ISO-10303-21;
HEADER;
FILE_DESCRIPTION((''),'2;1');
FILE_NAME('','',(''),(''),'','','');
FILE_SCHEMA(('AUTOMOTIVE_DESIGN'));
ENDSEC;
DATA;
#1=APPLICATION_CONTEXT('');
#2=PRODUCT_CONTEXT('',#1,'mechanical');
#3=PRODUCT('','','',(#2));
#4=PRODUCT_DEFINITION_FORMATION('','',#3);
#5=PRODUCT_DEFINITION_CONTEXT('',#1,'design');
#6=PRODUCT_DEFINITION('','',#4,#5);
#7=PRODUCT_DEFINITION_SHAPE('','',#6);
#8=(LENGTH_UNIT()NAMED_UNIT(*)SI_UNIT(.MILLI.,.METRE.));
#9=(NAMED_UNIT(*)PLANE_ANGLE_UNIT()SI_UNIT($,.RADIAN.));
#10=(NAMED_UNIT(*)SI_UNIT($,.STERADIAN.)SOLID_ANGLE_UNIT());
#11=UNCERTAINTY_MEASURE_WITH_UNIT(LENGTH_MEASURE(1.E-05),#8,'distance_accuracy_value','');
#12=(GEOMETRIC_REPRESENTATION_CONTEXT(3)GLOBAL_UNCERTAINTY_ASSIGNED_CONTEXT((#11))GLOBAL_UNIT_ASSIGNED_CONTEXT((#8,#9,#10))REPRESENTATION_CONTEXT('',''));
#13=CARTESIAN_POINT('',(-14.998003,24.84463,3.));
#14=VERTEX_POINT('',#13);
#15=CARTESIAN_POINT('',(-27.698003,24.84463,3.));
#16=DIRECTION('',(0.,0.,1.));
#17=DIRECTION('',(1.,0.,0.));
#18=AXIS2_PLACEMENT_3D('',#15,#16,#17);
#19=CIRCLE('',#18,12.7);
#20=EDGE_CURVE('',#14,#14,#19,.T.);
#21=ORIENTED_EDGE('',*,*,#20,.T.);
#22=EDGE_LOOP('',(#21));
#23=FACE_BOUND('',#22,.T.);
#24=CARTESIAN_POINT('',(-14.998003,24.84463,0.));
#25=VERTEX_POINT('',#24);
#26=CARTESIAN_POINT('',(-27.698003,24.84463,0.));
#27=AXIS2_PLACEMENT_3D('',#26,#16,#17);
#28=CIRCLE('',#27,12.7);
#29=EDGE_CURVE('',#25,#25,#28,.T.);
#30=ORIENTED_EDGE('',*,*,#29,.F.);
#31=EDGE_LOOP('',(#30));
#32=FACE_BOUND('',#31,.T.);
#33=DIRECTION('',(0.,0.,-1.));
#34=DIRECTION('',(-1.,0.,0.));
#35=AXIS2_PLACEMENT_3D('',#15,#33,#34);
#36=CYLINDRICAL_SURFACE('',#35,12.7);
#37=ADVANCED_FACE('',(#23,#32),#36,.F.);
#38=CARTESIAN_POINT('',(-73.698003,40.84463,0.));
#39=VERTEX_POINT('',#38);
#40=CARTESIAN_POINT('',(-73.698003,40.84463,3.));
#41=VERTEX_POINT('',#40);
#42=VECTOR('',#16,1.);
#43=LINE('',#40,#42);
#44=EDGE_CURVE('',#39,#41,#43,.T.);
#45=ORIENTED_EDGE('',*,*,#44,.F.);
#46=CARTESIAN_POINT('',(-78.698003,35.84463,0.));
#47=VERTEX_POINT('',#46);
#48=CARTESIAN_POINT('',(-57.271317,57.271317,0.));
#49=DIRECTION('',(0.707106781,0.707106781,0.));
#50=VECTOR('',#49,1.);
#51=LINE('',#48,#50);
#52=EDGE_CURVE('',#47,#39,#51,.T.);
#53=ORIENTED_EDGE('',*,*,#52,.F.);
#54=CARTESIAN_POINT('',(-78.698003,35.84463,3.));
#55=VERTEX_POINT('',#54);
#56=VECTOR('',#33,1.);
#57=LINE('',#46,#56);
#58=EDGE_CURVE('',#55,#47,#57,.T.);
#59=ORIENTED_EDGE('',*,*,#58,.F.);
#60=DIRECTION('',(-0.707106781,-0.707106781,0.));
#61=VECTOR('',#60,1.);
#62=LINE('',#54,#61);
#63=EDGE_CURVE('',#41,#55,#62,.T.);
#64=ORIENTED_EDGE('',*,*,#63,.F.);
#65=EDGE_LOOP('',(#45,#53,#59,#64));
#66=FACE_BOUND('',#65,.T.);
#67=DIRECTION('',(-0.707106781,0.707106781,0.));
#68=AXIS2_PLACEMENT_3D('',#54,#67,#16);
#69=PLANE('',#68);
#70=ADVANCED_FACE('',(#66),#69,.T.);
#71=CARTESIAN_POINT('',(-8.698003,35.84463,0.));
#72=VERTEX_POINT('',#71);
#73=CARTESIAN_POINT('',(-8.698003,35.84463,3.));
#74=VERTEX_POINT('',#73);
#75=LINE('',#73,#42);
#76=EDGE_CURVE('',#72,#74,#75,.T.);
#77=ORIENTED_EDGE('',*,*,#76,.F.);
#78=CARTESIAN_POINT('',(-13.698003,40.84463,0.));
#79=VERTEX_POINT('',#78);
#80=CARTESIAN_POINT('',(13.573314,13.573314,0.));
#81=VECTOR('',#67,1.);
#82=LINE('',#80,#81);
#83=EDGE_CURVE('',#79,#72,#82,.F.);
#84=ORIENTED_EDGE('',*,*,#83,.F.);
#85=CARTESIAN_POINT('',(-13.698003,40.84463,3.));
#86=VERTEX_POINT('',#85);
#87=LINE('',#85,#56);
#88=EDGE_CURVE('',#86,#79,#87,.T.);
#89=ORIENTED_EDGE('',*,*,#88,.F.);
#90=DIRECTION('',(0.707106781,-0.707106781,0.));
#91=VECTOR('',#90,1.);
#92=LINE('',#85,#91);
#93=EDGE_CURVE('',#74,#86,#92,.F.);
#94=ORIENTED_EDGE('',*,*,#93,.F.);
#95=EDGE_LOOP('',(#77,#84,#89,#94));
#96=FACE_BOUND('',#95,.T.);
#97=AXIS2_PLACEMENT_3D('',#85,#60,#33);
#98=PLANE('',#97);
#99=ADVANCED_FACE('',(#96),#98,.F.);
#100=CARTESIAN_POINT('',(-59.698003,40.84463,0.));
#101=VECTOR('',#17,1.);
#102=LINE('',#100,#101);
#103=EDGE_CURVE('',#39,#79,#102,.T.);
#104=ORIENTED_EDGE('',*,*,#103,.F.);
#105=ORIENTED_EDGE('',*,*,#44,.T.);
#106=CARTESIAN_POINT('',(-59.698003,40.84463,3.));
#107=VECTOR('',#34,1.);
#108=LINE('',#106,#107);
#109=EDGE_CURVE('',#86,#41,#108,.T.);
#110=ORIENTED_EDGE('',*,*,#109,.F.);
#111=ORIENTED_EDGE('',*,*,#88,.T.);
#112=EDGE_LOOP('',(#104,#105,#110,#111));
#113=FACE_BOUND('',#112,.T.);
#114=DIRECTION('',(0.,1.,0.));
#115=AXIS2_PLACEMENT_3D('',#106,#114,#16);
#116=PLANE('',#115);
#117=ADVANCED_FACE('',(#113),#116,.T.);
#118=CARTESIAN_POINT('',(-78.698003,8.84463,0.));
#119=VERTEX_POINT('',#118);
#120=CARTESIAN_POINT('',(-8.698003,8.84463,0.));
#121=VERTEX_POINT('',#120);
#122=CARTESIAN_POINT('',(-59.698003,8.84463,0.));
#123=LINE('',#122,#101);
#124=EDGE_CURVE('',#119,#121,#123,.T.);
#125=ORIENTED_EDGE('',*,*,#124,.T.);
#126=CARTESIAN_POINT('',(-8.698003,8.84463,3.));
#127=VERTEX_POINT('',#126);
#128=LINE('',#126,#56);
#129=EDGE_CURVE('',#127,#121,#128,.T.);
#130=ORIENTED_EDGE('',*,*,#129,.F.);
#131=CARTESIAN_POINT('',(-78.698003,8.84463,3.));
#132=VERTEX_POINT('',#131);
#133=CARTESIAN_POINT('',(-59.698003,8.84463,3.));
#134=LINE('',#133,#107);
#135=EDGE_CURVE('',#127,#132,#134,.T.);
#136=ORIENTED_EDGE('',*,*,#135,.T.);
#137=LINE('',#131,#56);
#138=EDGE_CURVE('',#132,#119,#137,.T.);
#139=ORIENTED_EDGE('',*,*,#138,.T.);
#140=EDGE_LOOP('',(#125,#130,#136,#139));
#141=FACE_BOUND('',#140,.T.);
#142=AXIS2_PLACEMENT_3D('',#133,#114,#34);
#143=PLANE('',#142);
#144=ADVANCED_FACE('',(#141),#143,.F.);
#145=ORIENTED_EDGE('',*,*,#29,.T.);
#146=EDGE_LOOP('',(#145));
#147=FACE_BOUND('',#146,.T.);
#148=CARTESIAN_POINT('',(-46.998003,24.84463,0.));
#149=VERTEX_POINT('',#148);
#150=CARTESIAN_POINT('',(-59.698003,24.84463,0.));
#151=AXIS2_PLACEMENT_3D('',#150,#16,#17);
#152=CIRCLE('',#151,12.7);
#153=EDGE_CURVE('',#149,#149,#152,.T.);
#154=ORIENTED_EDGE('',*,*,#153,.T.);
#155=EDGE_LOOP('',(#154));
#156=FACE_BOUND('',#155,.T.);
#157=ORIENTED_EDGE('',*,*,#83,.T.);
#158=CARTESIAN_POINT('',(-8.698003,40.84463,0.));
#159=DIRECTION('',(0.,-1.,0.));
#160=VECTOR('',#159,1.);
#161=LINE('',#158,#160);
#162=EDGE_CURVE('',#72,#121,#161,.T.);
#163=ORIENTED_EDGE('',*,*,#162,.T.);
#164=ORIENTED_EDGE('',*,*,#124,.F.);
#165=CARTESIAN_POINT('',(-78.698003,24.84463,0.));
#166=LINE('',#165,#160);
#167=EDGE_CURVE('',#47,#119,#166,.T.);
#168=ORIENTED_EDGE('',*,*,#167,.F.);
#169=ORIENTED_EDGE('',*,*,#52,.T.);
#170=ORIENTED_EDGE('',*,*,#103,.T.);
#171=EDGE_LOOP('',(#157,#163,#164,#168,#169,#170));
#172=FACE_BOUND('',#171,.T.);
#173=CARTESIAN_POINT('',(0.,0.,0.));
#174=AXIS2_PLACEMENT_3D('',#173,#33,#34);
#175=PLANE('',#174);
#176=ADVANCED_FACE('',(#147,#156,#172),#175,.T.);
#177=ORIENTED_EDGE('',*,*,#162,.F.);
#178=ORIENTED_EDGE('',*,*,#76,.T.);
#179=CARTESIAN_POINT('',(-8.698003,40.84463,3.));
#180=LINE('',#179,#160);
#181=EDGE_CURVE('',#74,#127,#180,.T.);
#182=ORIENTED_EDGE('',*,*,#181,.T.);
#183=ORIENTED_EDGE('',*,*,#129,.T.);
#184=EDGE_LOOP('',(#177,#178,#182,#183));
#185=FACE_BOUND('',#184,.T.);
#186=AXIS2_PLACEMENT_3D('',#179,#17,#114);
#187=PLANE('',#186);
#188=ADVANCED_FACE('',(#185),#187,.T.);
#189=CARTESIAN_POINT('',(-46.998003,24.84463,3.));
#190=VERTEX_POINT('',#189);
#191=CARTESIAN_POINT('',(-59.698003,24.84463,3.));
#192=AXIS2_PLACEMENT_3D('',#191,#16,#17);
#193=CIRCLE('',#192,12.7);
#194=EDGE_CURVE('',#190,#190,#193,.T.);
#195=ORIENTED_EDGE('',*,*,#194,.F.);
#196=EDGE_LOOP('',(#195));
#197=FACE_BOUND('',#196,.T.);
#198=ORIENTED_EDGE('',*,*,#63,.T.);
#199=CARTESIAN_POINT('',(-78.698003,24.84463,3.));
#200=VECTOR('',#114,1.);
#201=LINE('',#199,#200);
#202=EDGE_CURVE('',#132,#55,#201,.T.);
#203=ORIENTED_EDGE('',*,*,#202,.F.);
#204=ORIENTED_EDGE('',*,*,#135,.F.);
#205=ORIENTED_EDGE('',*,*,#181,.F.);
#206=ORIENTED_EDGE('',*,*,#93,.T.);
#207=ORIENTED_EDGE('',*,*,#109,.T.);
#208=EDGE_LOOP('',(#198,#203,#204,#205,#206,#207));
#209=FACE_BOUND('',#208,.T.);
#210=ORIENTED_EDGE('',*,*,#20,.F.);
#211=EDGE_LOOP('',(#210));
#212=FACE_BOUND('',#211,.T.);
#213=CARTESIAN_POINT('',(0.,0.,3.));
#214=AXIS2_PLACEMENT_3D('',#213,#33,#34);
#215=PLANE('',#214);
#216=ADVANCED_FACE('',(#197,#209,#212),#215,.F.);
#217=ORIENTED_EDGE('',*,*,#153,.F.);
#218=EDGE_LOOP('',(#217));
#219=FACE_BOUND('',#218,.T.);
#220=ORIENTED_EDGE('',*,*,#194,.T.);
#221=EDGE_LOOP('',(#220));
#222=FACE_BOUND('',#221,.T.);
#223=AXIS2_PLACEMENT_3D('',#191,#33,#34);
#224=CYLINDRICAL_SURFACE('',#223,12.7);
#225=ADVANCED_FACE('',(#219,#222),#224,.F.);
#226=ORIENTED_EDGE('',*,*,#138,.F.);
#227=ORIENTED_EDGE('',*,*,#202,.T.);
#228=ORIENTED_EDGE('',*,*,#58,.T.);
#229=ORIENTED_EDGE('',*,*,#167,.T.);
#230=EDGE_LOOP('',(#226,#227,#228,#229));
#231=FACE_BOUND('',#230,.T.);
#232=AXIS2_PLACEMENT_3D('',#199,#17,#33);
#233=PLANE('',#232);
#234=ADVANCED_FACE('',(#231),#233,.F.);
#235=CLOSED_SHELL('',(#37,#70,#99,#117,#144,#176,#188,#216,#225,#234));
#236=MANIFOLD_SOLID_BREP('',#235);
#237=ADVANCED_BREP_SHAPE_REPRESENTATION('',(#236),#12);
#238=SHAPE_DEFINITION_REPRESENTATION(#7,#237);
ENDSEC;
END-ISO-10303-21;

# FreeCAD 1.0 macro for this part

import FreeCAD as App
import Part
import Sketcher
from FreeCAD import Vector


def edges_at(feature, points):
    """Names of the edges that pass closest to the given points."""
    edges = feature.Shape.Edges
    near = lambda p: min(range(len(edges)), key=lambda i: edges[i].distToShape(Part.Vertex(*p))[0])
    return sorted({f"Edge{near(p) + 1}" for p in points})


def add_polygon(sketch, points):
    """Adds a closed chain of lines whose ends are joined by coincident constraints."""
    first, n = sketch.GeometryCount, len(points)
    for a, b in zip(points, points[1:] + points[:1]):
        sketch.addGeometry(Part.LineSegment(App.Vector(*a, 0), App.Vector(*b, 0)), False)
    for i in range(n):
        sketch.addConstraint(Sketcher.Constraint("Coincident", first + i, 2, first + (i + 1) % n, 1))

doc = App.newDocument("Part")
body = doc.addObject("PartDesign::Body", "Body")

sketch1 = body.newObject("Sketcher::SketchObject", "Sketch")
sketch1.AttachmentSupport = (doc.getObject("XY_Plane"), [""])
sketch1.MapMode = "FlatFace"
add_polygon(sketch1, [(-78.698003, 40.84463), (-78.698003, 8.84463), (-8.698003, 8.84463), (-8.698003, 40.84463)])
sketch1.addGeometry(Part.Circle(Vector(-27.698003, 24.84463, 0), Vector(0, 0, 1), 12.7), False)
sketch1.addGeometry(Part.Circle(Vector(-59.698003, 24.84463, 0), Vector(0, 0, 1), 12.7), False)
sketch1.addConstraint(Sketcher.Constraint("Vertical", 0))
sketch1.addConstraint(Sketcher.Constraint("Horizontal", 1))
sketch1.addConstraint(Sketcher.Constraint("Vertical", 2))
sketch1.addConstraint(Sketcher.Constraint("Horizontal", 3))
sketch1.addConstraint(Sketcher.Constraint("Equal", 4, 5))
sketch1.addConstraint(Sketcher.Constraint("Horizontal", 4, 3, 5, 3))
sketch1.addConstraint(Sketcher.Constraint("Diameter", 4, 25.4))
sketch1.addConstraint(Sketcher.Constraint("DistanceX", 1, 1, 1, 2, 70.0))
sketch1.addConstraint(Sketcher.Constraint("DistanceY", 0, 2, 0, 1, 32.0))
sketch1.addConstraint(Sketcher.Constraint("DistanceX", 5, 3, 4, 3, 32.0))
sketch1.addConstraint(Sketcher.Constraint("DistanceX", 0, 2, 5, 3, 19.0))
sketch1.addConstraint(Sketcher.Constraint("DistanceY", 0, 2, 5, 3, 16.0))
sketch1.addConstraint(Sketcher.Constraint("DistanceY", -1, 1, 4, 3, 24.84463))
sketch1.addConstraint(Sketcher.Constraint("DistanceX", 4, 3, -1, 1, 27.698003))
pad1 = body.newObject("PartDesign::Pad", "Pad")
pad1.Profile = sketch1
pad1.Length = 3
doc.recompute()

chamfer = body.newObject("PartDesign::Chamfer", "Chamfer")
chamfer.Base = (pad1, edges_at(pad1, [(-8.698, 40.845, 1.5), (-78.698, 40.845, 1.5)]))
chamfer.Size = 5

doc.recompute()
